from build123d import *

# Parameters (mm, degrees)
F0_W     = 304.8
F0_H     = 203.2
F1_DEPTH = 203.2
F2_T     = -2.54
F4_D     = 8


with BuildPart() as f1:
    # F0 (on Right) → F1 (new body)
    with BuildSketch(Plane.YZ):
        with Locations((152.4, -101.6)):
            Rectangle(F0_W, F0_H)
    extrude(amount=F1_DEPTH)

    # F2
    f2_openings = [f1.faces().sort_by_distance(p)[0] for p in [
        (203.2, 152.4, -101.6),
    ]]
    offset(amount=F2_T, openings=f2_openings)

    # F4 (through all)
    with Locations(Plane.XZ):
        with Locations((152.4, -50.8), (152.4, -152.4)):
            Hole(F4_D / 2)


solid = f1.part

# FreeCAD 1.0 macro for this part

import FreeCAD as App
import Part
import Sketcher

V = App.Vector
Q = App.Units.Quantity


def faces_at(feature, points):
    """Names of the faces that lie closest to the given points."""
    faces = feature.Shape.Faces
    near = lambda p: min(range(len(faces)), key=lambda i: faces[i].distToShape(Part.Vertex(*p))[0])
    return sorted({f"Face{near(p) + 1}" for p in points})

doc = App.newDocument("Part")
params = doc.addObject("Spreadsheet::Sheet", "Params")
for row, (alias, value) in enumerate([
    ("sketch1_width", "12 in"),
    ("sketch1_height", "8 in"),
    ("pad1_length", "8 in"),
    ("thickness_wall", "0.1 in"),
    ("hole_diameter", "8 mm"),
], start=1):
    params.set(f"A{row}", alias)
    params.set(f"B{row}", "=" + value)
    params.setAlias(f"B{row}", alias)

body = doc.addObject("PartDesign::Body", "Body")

# Sketch on YZ plane
sketch1 = body.newObject("Sketcher::SketchObject", "Sketch")
sketch1.AttachmentSupport = (doc.getObject("YZ_Plane"), [""])
sketch1.MapMode = "FlatFace"
sketch1.addGeometry([
    Part.LineSegment(V(0, 0, 0), V(0, -203, 0)),
    Part.LineSegment(V(0, -203, 0), V(305, -203, 0)),
    Part.LineSegment(V(305, -203, 0), V(305, 0, 0)),
    Part.LineSegment(V(305, 0, 0), V(0, 0, 0)),
], False)
sketch1.addConstraint([
    Sketcher.Constraint("Coincident", 0, 2, 1, 1),
    Sketcher.Constraint("Coincident", 1, 2, 2, 1),
    Sketcher.Constraint("Coincident", 2, 2, 3, 1),
    Sketcher.Constraint("Coincident", 3, 2, 0, 1),
    Sketcher.Constraint("Vertical", 0),
    Sketcher.Constraint("Horizontal", 1),
    Sketcher.Constraint("Vertical", 2),
    Sketcher.Constraint("Horizontal", 3),
    Sketcher.Constraint("Coincident", 3, 2, -1, 1),
    Sketcher.Constraint("DistanceX", 1, 1, 1, 2, Q("12 in")),
    Sketcher.Constraint("DistanceY", 0, 2, 0, 1, Q("8 in")),
])
sketch1.setExpression("Constraints[9]", "Params.sketch1_width")
sketch1.setExpression("Constraints[10]", "Params.sketch1_height")
pad1 = body.newObject("PartDesign::Pad", "Pad")
pad1.Profile = sketch1
pad1.setExpression("Length", "Params.pad1_length")
doc.recompute()

thickness = body.newObject("PartDesign::Thickness", "Thickness")
thickness.Base = (pad1, faces_at(pad1, [(203.2, 152.4, -101.6)]))
thickness.setExpression("Value", "Params.thickness_wall")
thickness.Reversed = True
thickness.Join = "Arc"

# Sketch on XZ plane
sketch2 = body.newObject("Sketcher::SketchObject", "Sketch001")
sketch2.AttachmentSupport = (doc.getObject("XZ_Plane"), [""])
sketch2.MapMode = "FlatFace"
sketch2.addGeometry([
    Part.Circle(V(152.4, -50.8, 0), V(0, 0, 1), 4),
    Part.Circle(V(152.4, -152.4, 0), V(0, 0, 1), 4),
], False)
sketch2.addConstraint([
    Sketcher.Constraint("Equal", 0, 1),
    Sketcher.Constraint("Vertical", 0, 3, 1, 3),
    Sketcher.Constraint("DistanceX", -1, 1, 0, 3, Q("6 in")),
    Sketcher.Constraint("DistanceY", 0, 3, -1, 1, Q("2 in")),
    Sketcher.Constraint("DistanceY", 1, 3, -1, 1, Q("6 in")),
    Sketcher.Constraint("Diameter", 0, 8.0),
])
doc.recompute()
hole = body.newObject("PartDesign::Hole", "Hole")
hole.Profile = sketch2
hole.ThreadType = "None"
hole.setExpression("Diameter", "Params.hole_diameter")
hole.DepthType = "ThroughAll"

doc.recompute()
